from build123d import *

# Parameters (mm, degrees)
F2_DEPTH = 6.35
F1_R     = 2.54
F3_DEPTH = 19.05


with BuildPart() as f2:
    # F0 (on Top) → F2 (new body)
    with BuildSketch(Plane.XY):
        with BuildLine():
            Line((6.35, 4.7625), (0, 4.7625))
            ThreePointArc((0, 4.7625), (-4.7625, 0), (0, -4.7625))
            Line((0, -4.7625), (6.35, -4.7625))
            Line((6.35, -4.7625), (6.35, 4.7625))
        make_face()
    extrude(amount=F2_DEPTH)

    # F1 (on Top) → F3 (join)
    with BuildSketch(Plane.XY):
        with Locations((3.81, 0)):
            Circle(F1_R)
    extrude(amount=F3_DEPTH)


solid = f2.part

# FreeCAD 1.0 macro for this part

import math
import FreeCAD as App
import Part
import Sketcher

V = App.Vector
Q = App.Units.Quantity

doc = App.newDocument("Part")
params = doc.addObject("Spreadsheet::Sheet", "Params")
for row, (alias, value) in enumerate([
    ("sketch1_radius", "0.1875 in"),
    ("sketch1_width", "0.25 in"),
    ("pad1_length", "0.25 in"),
    ("sketch2_diameter", "0.2 in"),
    ("pad2_length", "0.75 in"),
], start=1):
    params.set(f"A{row}", alias)
    params.set(f"B{row}", "=" + value)
    params.setAlias(f"B{row}", alias)

body = doc.addObject("PartDesign::Body", "Body")

# Sketch on XY plane
sketch1 = doc.addObject("Sketcher::SketchObject", "Sketch")
body.addObject(sketch1)
sketch1.AttachmentSupport = (doc.XY_Plane, [""])
sketch1.MapMode = "FlatFace"
sketch1.addGeometry([
    Part.LineSegment(V(6.3, 4.8, 0), V(0, 4.8, 0)),
    Part.ArcOfCircle(Part.Circle(V(0, 0, 0), V(0, 0, 1), 4.8), math.radians(90), math.radians(270)),
    Part.LineSegment(V(0, -4.8, 0), V(6.3, -4.8, 0)),
    Part.LineSegment(V(6.3, -4.8, 0), V(6.3, 4.8, 0)),
], False)
sketch1.addConstraint([
    Sketcher.Constraint("Tangent", 0, 2, 1, 1),
    Sketcher.Constraint("Tangent", 1, 2, 2, 1),
    Sketcher.Constraint("Coincident", 2, 2, 3, 1),
    Sketcher.Constraint("Coincident", 3, 2, 0, 1),
    Sketcher.Constraint("Horizontal", 0),
    Sketcher.Constraint("Horizontal", 2),
    Sketcher.Constraint("Vertical", 3),
    Sketcher.Constraint("Coincident", 1, 3, -1, 1),
    Sketcher.Constraint("Radius", 1, Q("0.1875 in")),
    Sketcher.Constraint("DistanceX", 0, 2, 0, 1, Q("0.25 in")),
])
sketch1.setExpression("Constraints[8]", "Params.sketch1_radius")
sketch1.setExpression("Constraints[9]", "Params.sketch1_width")
pad1 = doc.addObject("PartDesign::Pad", "Pad")
body.addObject(pad1)
pad1.Profile = sketch1
pad1.setExpression("Length", "Params.pad1_length")

# Sketch on XY plane
sketch2 = doc.addObject("Sketcher::SketchObject", "Sketch001")
body.addObject(sketch2)
sketch2.AttachmentSupport = (doc.XY_Plane, [""])
sketch2.MapMode = "FlatFace"
sketch2.addGeometry(Part.Circle(V(3.8, 0, 0), V(0, 0, 1), 2.5), False)
sketch2.addConstraint([
    Sketcher.Constraint("PointOnObject", 0, 3, -1),
    Sketcher.Constraint("Diameter", 0, Q("0.2 in")),
    Sketcher.Constraint("DistanceX", -1, 1, 0, 3, Q("0.15 in")),
])
sketch2.setExpression("Constraints[1]", "Params.sketch2_diameter")
pad2 = doc.addObject("PartDesign::Pad", "Pad001")
body.addObject(pad2)
pad2.Profile = sketch2
pad2.setExpression("Length", "Params.pad2_length")

doc.recompute()
